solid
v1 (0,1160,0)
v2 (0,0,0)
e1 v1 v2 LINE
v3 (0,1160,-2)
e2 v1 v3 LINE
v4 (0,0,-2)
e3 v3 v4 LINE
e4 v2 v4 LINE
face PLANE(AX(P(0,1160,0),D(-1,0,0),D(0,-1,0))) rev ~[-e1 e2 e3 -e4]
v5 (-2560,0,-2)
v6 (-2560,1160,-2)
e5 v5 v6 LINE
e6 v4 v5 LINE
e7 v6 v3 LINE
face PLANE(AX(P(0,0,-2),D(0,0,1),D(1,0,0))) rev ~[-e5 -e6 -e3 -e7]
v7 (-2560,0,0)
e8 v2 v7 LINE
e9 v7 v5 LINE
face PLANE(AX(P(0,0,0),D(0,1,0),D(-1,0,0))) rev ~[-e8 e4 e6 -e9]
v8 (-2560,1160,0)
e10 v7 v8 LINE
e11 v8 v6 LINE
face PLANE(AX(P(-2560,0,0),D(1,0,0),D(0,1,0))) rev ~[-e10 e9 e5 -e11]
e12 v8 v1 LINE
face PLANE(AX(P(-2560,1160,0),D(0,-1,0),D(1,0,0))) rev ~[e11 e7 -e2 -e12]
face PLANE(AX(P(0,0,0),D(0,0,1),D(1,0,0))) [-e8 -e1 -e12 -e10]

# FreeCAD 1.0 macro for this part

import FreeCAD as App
import Part
import Sketcher
Q = App.Units.Quantity


def add_polygon(sketch, points):
    """Adds a closed chain of lines whose ends are joined by coincident constraints."""
    first, n = sketch.GeometryCount, len(points)
    for a, b in zip(points, points[1:] + points[:1]):
        sketch.addGeometry(Part.LineSegment(App.Vector(*a, 0), App.Vector(*b, 0)), False)
    for i in range(n):
        sketch.addConstraint(Sketcher.Constraint("Coincident", first + i, 2, first + (i + 1) % n, 1))

doc = App.newDocument("Part")
body = doc.addObject("PartDesign::Body", "Body")

sketch1 = doc.addObject("Sketcher::SketchObject", "Sketch")
body.addObject(sketch1)
sketch1.AttachmentSupport = (doc.XY_Plane, [""])
sketch1.MapMode = "FlatFace"
add_polygon(sketch1, [(-2560, 0), (0, 0), (0, 1160), (-2560, 1160)])
sketch1.addConstraint([
    Sketcher.Constraint("Horizontal", 0),
    Sketcher.Constraint("Vertical", 1),
    Sketcher.Constraint("Horizontal", 2),
    Sketcher.Constraint("Vertical", 3),
    Sketcher.Constraint("Coincident", 0, 2, -1, 1),
    Sketcher.Constraint("DistanceX", 0, 1, 0, 2, Q("2560 mm")),
    Sketcher.Constraint("DistanceY", 1, 1, 1, 2, Q("1160 mm")),
])
pad1 = doc.addObject("PartDesign::Pad", "Pad")
body.addObject(pad1)
pad1.Profile = sketch1
pad1.Length = 2
pad1.Reversed = True

doc.recompute()
